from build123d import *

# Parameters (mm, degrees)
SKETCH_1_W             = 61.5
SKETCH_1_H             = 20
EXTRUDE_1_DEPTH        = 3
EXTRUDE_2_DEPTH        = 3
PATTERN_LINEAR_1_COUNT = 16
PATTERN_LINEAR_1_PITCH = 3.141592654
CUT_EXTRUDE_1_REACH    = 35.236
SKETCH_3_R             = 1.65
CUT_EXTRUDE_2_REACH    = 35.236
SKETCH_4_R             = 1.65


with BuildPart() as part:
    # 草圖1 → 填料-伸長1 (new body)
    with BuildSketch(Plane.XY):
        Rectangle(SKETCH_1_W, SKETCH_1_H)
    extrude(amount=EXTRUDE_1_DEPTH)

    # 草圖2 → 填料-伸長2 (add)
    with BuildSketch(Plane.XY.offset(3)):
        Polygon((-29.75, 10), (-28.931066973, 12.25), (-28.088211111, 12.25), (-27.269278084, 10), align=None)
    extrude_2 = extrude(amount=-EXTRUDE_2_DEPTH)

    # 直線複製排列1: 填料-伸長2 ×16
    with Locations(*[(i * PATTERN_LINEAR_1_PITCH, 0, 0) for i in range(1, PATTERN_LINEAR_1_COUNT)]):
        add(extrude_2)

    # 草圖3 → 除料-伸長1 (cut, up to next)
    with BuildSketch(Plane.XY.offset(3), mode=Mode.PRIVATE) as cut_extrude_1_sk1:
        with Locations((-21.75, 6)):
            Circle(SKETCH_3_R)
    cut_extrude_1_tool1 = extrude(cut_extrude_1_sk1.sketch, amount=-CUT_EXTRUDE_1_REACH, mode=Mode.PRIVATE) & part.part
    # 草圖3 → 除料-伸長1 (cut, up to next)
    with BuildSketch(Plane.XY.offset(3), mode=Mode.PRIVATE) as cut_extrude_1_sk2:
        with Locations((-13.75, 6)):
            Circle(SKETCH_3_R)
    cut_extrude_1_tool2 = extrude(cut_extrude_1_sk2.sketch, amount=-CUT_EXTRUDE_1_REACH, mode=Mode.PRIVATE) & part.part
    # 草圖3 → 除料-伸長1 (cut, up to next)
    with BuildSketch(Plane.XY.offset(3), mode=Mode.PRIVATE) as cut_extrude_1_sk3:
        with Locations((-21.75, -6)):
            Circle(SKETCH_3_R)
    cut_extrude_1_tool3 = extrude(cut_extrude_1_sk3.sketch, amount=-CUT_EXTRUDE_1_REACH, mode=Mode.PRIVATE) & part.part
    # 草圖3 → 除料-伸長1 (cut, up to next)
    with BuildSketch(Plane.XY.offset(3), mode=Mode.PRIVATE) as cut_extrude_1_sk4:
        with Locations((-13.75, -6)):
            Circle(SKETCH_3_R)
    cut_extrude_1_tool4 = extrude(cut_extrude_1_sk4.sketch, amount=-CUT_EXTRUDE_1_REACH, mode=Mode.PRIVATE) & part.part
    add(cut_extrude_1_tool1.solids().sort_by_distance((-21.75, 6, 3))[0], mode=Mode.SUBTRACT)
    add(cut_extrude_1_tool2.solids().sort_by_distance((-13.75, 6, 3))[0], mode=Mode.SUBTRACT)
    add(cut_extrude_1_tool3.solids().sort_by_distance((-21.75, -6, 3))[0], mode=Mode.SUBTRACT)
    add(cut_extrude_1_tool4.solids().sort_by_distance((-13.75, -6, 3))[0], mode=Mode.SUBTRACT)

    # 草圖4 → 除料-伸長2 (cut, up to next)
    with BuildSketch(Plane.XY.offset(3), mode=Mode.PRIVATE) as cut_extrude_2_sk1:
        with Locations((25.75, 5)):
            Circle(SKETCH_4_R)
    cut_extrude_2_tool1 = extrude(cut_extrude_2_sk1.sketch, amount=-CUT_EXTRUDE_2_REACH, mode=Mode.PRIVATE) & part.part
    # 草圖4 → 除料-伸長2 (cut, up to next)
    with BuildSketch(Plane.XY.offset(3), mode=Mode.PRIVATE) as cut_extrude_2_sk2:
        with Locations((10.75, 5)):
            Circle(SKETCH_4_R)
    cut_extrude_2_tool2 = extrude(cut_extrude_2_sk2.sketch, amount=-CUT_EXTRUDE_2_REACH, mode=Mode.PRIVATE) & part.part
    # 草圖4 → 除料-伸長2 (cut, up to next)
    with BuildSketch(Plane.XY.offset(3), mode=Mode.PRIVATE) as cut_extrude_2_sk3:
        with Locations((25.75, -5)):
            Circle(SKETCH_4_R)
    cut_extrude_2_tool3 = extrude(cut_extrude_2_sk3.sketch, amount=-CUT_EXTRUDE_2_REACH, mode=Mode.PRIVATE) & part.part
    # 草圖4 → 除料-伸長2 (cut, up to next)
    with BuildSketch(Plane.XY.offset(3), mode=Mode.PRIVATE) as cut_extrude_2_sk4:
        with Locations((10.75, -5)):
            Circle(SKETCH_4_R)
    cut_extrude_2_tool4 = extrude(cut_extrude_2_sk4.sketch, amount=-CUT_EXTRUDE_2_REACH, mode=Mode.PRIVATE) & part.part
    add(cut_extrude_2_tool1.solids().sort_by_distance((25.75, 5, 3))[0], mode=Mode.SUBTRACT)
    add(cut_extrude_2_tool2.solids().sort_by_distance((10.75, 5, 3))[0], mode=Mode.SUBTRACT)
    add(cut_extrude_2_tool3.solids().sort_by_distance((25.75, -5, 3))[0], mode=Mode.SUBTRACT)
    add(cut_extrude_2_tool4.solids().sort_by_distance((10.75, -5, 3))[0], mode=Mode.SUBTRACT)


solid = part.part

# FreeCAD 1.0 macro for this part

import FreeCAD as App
import Part
import Sketcher
Q = App.Units.Quantity


def add_polygon(sketch, points):
    """Adds a closed chain of lines whose ends are joined by coincident constraints."""
    first, n = sketch.GeometryCount, len(points)
    for a, b in zip(points, points[1:] + points[:1]):
        sketch.addGeometry(Part.LineSegment(App.Vector(*a, 0), App.Vector(*b, 0)), False)
    for i in range(n):
        sketch.addConstraint(Sketcher.Constraint("Coincident", first + i, 2, first + (i + 1) % n, 1))

doc = App.newDocument("Part")
body = doc.addObject("PartDesign::Body", "Body")

# Sketch on XY plane
sketch1 = body.newObject("Sketcher::SketchObject", "Sketch")
sketch1.AttachmentSupport = (doc.getObject("XY_Plane"), [""])
sketch1.MapMode = "FlatFace"
add_polygon(sketch1, [(-30.75, 10), (-30.75, -10), (30.75, -10), (30.75, 10)])  # lines 0-3
sketch1.addConstraint([
    Sketcher.Constraint("Vertical", 0),
    Sketcher.Constraint("Horizontal", 1),
    Sketcher.Constraint("Vertical", 2),
    Sketcher.Constraint("Horizontal", 3),
    Sketcher.Constraint("Symmetric", 0, 2, 2, 2, -1, 1),
    Sketcher.Constraint("DistanceY", 0, 2, 0, 1, Q("20 mm")),
    Sketcher.Constraint("DistanceX", 1, 1, 1, 2, Q("61.5 mm")),
])
pad1 = body.newObject("PartDesign::Pad", "Pad")
pad1.Profile = sketch1
pad1.Length = 3

# Sketch on XY plane
sketch2 = body.newObject("Sketcher::SketchObject", "Sketch001")
sketch2.AttachmentSupport = (doc.getObject("XY_Plane"), [""])
sketch2.MapMode = "FlatFace"
sketch2.AttachmentOffset = App.Placement(App.Vector(0, 0, 3), App.Rotation())
add_polygon(sketch2, [(-28.931067, 12.25), (-29.75, 10), (-27.269278, 10), (-28.088211, 12.25)])  # lines 0-3
sketch2.addConstraint([
    Sketcher.Constraint("Horizontal", 1),
    Sketcher.Constraint("Horizontal", 3),
    Sketcher.Constraint("Equal", 0, 2),
    Sketcher.Constraint("Angle", 0, Q("-110 deg")),
    Sketcher.Constraint("DistanceY", -1, 1, 0, 2, Q("10 mm")),
    Sketcher.Constraint("DistanceX", 0, 2, -1, 1, Q("29.75 mm")),
    Sketcher.Constraint("DistanceY", -1, 1, 2, 2, Q("12.25 mm")),
    Sketcher.Constraint("DistanceX", 1, 1, 1, 2, Q("2.480722 mm")),
])
pad2 = body.newObject("PartDesign::Pad", "Pad001")
pad2.Profile = sketch2
pad2.Length = 3
pad2.Reversed = True
doc.recompute()

linearpattern = body.newObject("PartDesign::LinearPattern", "LinearPattern")
linearpattern.Originals = [pad2]
linearpattern.Direction = (doc.getObject("X_Axis"), [""])
linearpattern.Mode = "offset"
linearpattern.Offset = 3.141593
linearpattern.Occurrences = 16
body.Tip = linearpattern

# Sketch on XY plane
sketch3 = body.newObject("Sketcher::SketchObject", "Sketch002")
sketch3.AttachmentSupport = (doc.getObject("XY_Plane"), [""])
sketch3.MapMode = "FlatFace"
sketch3.AttachmentOffset = App.Placement(App.Vector(0, 0, 3), App.Rotation())
sketch3.addGeometry(Part.Circle(App.Vector(-21.75, 6, 0), App.Vector(0, 0, 1), 1.65), False)
sketch3.addConstraint([
    Sketcher.Constraint("Diameter", 0, Q("3.3 mm")),
    Sketcher.Constraint("DistanceY", -1, 1, 0, 3, Q("6 mm")),
    Sketcher.Constraint("DistanceX", 0, 3, -1, 1, Q("21.75 mm")),
])
pocket1 = body.newObject("PartDesign::Pocket", "Pocket")
pocket1.Profile = sketch3
pocket1.Type = "UpToFirst"

# Sketch on XY plane
sketch4 = body.newObject("Sketcher::SketchObject", "Sketch003")
sketch4.AttachmentSupport = (doc.getObject("XY_Plane"), [""])
sketch4.MapMode = "FlatFace"
sketch4.AttachmentOffset = App.Placement(App.Vector(0, 0, 3), App.Rotation())
sketch4.addGeometry(Part.Circle(App.Vector(-13.75, 6, 0), App.Vector(0, 0, 1), 1.65), False)
sketch4.addConstraint([
    Sketcher.Constraint("Diameter", 0, Q("3.3 mm")),
    Sketcher.Constraint("DistanceY", -1, 1, 0, 3, Q("6 mm")),
    Sketcher.Constraint("DistanceX", 0, 3, -1, 1, Q("13.75 mm")),
])
pocket2 = body.newObject("PartDesign::Pocket", "Pocket001")
pocket2.Profile = sketch4
pocket2.Type = "UpToFirst"

# Sketch on XY plane
sketch5 = body.newObject("Sketcher::SketchObject", "Sketch004")
sketch5.AttachmentSupport = (doc.getObject("XY_Plane"), [""])
sketch5.MapMode = "FlatFace"
sketch5.AttachmentOffset = App.Placement(App.Vector(0, 0, 3), App.Rotation())
sketch5.addGeometry(Part.Circle(App.Vector(-21.75, -6, 0), App.Vector(0, 0, 1), 1.65), False)
sketch5.addConstraint([
    Sketcher.Constraint("Diameter", 0, Q("3.3 mm")),
    Sketcher.Constraint("DistanceY", 0, 3, -1, 1, Q("6 mm")),
    Sketcher.Constraint("DistanceX", 0, 3, -1, 1, Q("21.75 mm")),
])
pocket3 = body.newObject("PartDesign::Pocket", "Pocket002")
pocket3.Profile = sketch5
pocket3.Type = "UpToFirst"

# Sketch on XY plane
sketch6 = body.newObject("Sketcher::SketchObject", "Sketch005")
sketch6.AttachmentSupport = (doc.getObject("XY_Plane"), [""])
sketch6.MapMode = "FlatFace"
sketch6.AttachmentOffset = App.Placement(App.Vector(0, 0, 3), App.Rotation())
sketch6.addGeometry(Part.Circle(App.Vector(-13.75, -6, 0), App.Vector(0, 0, 1), 1.65), False)
sketch6.addConstraint([
    Sketcher.Constraint("Diameter", 0, Q("3.3 mm")),
    Sketcher.Constraint("DistanceY", 0, 3, -1, 1, Q("6 mm")),
    Sketcher.Constraint("DistanceX", 0, 3, -1, 1, Q("13.75 mm")),
])
pocket4 = body.newObject("PartDesign::Pocket", "Pocket003")
pocket4.Profile = sketch6
pocket4.Type = "UpToFirst"

# Sketch on XY plane
sketch7 = body.newObject("Sketcher::SketchObject", "Sketch006")
sketch7.AttachmentSupport = (doc.getObject("XY_Plane"), [""])
sketch7.MapMode = "FlatFace"
sketch7.AttachmentOffset = App.Placement(App.Vector(0, 0, 3), App.Rotation())
sketch7.addGeometry(Part.Circle(App.Vector(25.75, 5, 0), App.Vector(0, 0, 1), 1.65), False)
sketch7.addConstraint([
    Sketcher.Constraint("Diameter", 0, Q("3.3 mm")),
    Sketcher.Constraint("DistanceY", -1, 1, 0, 3, Q("5 mm")),
    Sketcher.Constraint("DistanceX", -1, 1, 0, 3, Q("25.75 mm")),
])
pocket5 = body.newObject("PartDesign::Pocket", "Pocket004")
pocket5.Profile = sketch7
pocket5.Type = "UpToFirst"

# Sketch on XY plane
sketch8 = body.newObject("Sketcher::SketchObject", "Sketch007")
sketch8.AttachmentSupport = (doc.getObject("XY_Plane"), [""])
sketch8.MapMode = "FlatFace"
sketch8.AttachmentOffset = App.Placement(App.Vector(0, 0, 3), App.Rotation())
sketch8.addGeometry(Part.Circle(App.Vector(10.75, 5, 0), App.Vector(0, 0, 1), 1.65), False)
sketch8.addConstraint([
    Sketcher.Constraint("Diameter", 0, Q("3.3 mm")),
    Sketcher.Constraint("DistanceY", -1, 1, 0, 3, Q("5 mm")),
    Sketcher.Constraint("DistanceX", -1, 1, 0, 3, Q("10.75 mm")),
])
pocket6 = body.newObject("PartDesign::Pocket", "Pocket005")
pocket6.Profile = sketch8
pocket6.Type = "UpToFirst"

# Sketch on XY plane
sketch9 = body.newObject("Sketcher::SketchObject", "Sketch008")
sketch9.AttachmentSupport = (doc.getObject("XY_Plane"), [""])
sketch9.MapMode = "FlatFace"
sketch9.AttachmentOffset = App.Placement(App.Vector(0, 0, 3), App.Rotation())
sketch9.addGeometry(Part.Circle(App.Vector(25.75, -5, 0), App.Vector(0, 0, 1), 1.65), False)
sketch9.addConstraint([
    Sketcher.Constraint("Diameter", 0, Q("3.3 mm")),
    Sketcher.Constraint("DistanceY", 0, 3, -1, 1, Q("5 mm")),
    Sketcher.Constraint("DistanceX", -1, 1, 0, 3, Q("25.75 mm")),
])
pocket7 = body.newObject("PartDesign::Pocket", "Pocket006")
pocket7.Profile = sketch9
pocket7.Type = "UpToFirst"

# Sketch on XY plane
sketch10 = body.newObject("Sketcher::SketchObject", "Sketch009")
sketch10.AttachmentSupport = (doc.getObject("XY_Plane"), [""])
sketch10.MapMode = "FlatFace"
sketch10.AttachmentOffset = App.Placement(App.Vector(0, 0, 3), App.Rotation())
sketch10.addGeometry(Part.Circle(App.Vector(10.75, -5, 0), App.Vector(0, 0, 1), 1.65), False)
sketch10.addConstraint([
    Sketcher.Constraint("Diameter", 0, Q("3.3 mm")),
    Sketcher.Constraint("DistanceY", 0, 3, -1, 1, Q("5 mm")),
    Sketcher.Constraint("DistanceX", -1, 1, 0, 3, Q("10.75 mm")),
])
pocket8 = body.newObject("PartDesign::Pocket", "Pocket007")
pocket8.Profile = sketch10
pocket8.Type = "UpToFirst"

doc.recompute()
